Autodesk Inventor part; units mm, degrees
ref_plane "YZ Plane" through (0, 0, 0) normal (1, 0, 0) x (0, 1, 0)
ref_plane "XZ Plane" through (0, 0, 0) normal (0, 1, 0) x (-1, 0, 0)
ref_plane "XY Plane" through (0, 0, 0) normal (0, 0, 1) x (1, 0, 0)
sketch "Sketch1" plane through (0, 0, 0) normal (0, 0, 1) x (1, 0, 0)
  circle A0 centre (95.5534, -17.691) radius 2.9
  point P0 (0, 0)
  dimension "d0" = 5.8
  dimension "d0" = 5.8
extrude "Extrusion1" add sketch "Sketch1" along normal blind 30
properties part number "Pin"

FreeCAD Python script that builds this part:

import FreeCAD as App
import Part
import Sketcher

V = App.Vector

doc = App.newDocument("Part")
body = doc.addObject("PartDesign::Body", "Body")

# Sketch on XY plane
sketch1 = doc.addObject("Sketcher::SketchObject", "Sketch")
body.addObject(sketch1)
sketch1.AttachmentSupport = (doc.XY_Plane, [""])
sketch1.MapMode = "FlatFace"
sketch1.addGeometry(Part.Circle(V(95.6, -17.7, 0), V(0, 0, 1), 2.9), False)
sketch1.addConstraint([
    Sketcher.Constraint("Diameter", 0, 5.8),
    Sketcher.Constraint("DistanceY", 0, 3, -1, 1, 17.691),
    Sketcher.Constraint("DistanceX", -1, 1, 0, 3, 95.5534),
])
pad1 = doc.addObject("PartDesign::Pad", "Pad")
body.addObject(pad1)
pad1.Profile = sketch1
pad1.Length = 30

doc.recompute()
